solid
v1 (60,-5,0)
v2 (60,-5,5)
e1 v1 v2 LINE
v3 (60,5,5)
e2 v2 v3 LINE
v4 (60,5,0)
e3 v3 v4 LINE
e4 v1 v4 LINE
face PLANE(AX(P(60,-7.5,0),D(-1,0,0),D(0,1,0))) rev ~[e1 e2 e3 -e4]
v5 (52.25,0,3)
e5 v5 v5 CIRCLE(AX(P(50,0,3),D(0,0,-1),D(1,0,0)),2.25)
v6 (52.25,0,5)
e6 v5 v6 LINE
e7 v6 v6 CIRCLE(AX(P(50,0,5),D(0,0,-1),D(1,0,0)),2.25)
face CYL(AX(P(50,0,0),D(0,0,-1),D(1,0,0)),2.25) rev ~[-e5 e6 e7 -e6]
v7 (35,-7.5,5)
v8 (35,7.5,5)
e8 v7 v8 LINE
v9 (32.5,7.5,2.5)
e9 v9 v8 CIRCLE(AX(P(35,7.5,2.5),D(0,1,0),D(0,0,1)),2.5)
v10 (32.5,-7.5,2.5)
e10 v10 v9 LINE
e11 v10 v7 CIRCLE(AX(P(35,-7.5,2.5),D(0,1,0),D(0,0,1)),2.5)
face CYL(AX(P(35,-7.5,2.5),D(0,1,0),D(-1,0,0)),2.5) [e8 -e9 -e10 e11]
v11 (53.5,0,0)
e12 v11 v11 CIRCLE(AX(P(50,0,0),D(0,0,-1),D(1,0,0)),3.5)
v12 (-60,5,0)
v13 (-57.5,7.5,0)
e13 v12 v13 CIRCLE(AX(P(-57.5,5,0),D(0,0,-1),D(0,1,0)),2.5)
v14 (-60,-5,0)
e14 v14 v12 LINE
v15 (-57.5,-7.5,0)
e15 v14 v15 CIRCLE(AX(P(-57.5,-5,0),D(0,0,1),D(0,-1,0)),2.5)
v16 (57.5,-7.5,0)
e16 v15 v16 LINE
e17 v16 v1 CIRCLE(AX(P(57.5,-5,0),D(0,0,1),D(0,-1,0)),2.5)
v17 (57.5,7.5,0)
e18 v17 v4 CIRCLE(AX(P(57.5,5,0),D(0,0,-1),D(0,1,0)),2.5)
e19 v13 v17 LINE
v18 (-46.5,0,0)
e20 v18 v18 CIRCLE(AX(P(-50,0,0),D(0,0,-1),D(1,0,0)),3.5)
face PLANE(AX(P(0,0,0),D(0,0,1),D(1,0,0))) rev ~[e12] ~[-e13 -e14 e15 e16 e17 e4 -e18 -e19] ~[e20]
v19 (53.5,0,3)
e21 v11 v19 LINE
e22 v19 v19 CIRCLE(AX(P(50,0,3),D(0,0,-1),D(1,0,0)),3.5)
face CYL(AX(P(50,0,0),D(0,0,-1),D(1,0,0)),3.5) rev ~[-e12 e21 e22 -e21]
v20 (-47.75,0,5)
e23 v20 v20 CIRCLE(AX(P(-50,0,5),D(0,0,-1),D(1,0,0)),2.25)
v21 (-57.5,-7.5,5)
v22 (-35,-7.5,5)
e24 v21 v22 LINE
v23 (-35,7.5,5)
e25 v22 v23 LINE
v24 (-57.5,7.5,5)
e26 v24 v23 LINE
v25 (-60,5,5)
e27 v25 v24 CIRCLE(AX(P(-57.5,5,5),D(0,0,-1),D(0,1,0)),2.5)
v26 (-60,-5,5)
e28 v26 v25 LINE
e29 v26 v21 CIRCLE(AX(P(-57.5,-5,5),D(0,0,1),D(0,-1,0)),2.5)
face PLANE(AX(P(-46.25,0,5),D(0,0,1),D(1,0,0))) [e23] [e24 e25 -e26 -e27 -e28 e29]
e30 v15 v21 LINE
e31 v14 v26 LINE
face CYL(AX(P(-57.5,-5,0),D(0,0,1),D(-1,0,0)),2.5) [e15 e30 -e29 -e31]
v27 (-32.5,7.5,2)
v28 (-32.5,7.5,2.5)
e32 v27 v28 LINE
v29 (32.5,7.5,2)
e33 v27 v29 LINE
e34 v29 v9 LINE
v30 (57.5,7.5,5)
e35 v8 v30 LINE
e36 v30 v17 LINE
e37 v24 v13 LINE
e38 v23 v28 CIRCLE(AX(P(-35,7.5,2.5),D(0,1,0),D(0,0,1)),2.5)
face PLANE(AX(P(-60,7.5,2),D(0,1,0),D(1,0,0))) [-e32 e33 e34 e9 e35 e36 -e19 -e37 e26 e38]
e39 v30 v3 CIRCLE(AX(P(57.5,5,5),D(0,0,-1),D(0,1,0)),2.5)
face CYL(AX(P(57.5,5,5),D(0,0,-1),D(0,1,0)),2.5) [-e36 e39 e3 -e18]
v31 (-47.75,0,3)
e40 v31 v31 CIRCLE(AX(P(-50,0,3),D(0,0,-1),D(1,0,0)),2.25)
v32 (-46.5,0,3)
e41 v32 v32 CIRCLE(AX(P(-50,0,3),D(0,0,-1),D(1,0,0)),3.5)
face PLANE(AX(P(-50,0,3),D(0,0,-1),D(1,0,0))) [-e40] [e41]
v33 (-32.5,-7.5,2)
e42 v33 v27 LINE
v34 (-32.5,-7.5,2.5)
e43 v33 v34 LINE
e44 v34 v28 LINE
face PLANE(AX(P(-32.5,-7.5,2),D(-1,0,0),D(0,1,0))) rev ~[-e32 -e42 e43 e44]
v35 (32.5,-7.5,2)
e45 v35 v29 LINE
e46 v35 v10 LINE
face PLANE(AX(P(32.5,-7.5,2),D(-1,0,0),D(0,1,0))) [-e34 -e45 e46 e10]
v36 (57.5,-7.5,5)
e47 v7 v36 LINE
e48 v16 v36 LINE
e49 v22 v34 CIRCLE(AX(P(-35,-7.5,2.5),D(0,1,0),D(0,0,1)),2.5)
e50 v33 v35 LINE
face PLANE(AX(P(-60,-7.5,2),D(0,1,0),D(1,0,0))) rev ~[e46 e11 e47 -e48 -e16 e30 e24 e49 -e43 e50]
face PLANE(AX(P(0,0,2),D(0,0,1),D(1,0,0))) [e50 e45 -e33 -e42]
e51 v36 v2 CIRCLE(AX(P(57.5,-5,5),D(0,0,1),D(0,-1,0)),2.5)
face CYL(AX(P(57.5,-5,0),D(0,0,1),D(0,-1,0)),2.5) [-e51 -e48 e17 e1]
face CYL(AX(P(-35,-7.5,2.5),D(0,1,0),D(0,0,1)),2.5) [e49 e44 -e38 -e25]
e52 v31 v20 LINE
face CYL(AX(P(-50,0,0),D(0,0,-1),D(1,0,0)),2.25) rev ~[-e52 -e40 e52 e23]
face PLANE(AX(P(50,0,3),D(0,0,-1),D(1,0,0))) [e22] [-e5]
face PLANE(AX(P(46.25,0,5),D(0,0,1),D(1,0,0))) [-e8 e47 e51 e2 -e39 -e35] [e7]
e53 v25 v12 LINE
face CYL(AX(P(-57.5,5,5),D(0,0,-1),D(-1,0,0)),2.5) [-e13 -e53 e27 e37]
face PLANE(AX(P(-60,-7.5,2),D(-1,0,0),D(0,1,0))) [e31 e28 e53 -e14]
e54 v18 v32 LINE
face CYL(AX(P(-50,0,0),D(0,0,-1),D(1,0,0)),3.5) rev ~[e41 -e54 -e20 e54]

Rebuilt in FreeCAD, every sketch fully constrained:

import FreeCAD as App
import Part
import Sketcher
from FreeCAD import Vector


def edges_at(feature, points):
    """Names of the edges that pass closest to the given points."""
    edges = feature.Shape.Edges
    near = lambda p: min(range(len(edges)), key=lambda i: edges[i].distToShape(Part.Vertex(*p))[0])
    return sorted({f"Edge{near(p) + 1}" for p in points})

doc = App.newDocument("Part")
params = doc.addObject("Spreadsheet::Sheet", "Params")
for row, (alias, value) in enumerate([
    ("sketch1_width", "120 mm"),
    ("sketch1_height", "15 mm"),
    ("pad1_length", "2 mm"),
    ("sketch2_height", "15 mm"),
    ("sketch2_width", "27.5 mm"),
    ("pad2_length", "3 mm"),
    ("sketch3_diameter", "4.5 mm"),
    ("pocket1_length", "5 mm"),
    ("fillet_radius", "2.5 mm"),
    ("sketch4_diameter", "7 mm"),
    ("sketch4_diameter2", "4.5 mm"),
    ("pocket2_length", "3 mm"),
], start=1):
    params.set(f"A{row}", alias)
    params.set(f"B{row}", "=" + value)
    params.setAlias(f"B{row}", alias)

body = doc.addObject("PartDesign::Body", "Body")

# Sketch on XY plane
sketch1 = body.newObject("Sketcher::SketchObject", "Sketch")
sketch1.AttachmentSupport = (doc.getObject("XY_Plane"), [""])
sketch1.MapMode = "FlatFace"
sketch1.addGeometry([
    Part.LineSegment(Vector(-60, 7.5, 0), Vector(-60, -7.5, 0)),
    Part.LineSegment(Vector(-60, -7.5, 0), Vector(60, -7.5, 0)),
    Part.LineSegment(Vector(60, -7.5, 0), Vector(60, 7.5, 0)),
    Part.LineSegment(Vector(60, 7.5, 0), Vector(-60, 7.5, 0)),
], False)
sketch1.addConstraint([
    Sketcher.Constraint("Coincident", 0, 2, 1, 1),
    Sketcher.Constraint("Coincident", 1, 2, 2, 1),
    Sketcher.Constraint("Coincident", 2, 2, 3, 1),
    Sketcher.Constraint("Coincident", 3, 2, 0, 1),
    Sketcher.Constraint("Vertical", 0),
    Sketcher.Constraint("Horizontal", 1),
    Sketcher.Constraint("Vertical", 2),
    Sketcher.Constraint("Horizontal", 3),
    Sketcher.Constraint("Symmetric", 0, 2, 2, 2, -1, 1),
    Sketcher.Constraint("DistanceX", 1, 1, 1, 2, 120.0),
    Sketcher.Constraint("DistanceY", 0, 2, 0, 1, 15.0),
])
sketch1.setExpression("Constraints[9]", "Params.sketch1_width")
sketch1.setExpression("Constraints[10]", "Params.sketch1_height")
pad1 = body.newObject("PartDesign::Pad", "Pad")
pad1.Profile = sketch1
pad1.setExpression("Length", "Params.pad1_length")

# Sketch on XY plane
sketch2 = body.newObject("Sketcher::SketchObject", "Sketch001")
sketch2.AttachmentSupport = (doc.getObject("XY_Plane"), [""])
sketch2.MapMode = "FlatFace"
sketch2.AttachmentOffset = App.Placement(Vector(0, 0, 2), App.Rotation())
sketch2.addGeometry([
    Part.LineSegment(Vector(-60, 7.5, 0), Vector(-60, -7.5, 0)),  # 0
    Part.LineSegment(Vector(-60, -7.5, 0), Vector(-32.5, -7.5, 0)),  # 1
    Part.LineSegment(Vector(-32.5, -7.5, 0), Vector(-32.5, 7.5, 0)),  # 2
    Part.LineSegment(Vector(-32.5, 7.5, 0), Vector(-60, 7.5, 0)),  # 3
    Part.LineSegment(Vector(32.5, 7.5, 0), Vector(32.5, -7.5, 0)),  # 4
    Part.LineSegment(Vector(32.5, -7.5, 0), Vector(60, -7.5, 0)),  # 5
    Part.LineSegment(Vector(60, -7.5, 0), Vector(60, 7.5, 0)),  # 6
    Part.LineSegment(Vector(60, 7.5, 0), Vector(32.5, 7.5, 0)),  # 7
], False)
sketch2.addConstraint([
    Sketcher.Constraint("Coincident", 0, 2, 1, 1),
    Sketcher.Constraint("Coincident", 1, 2, 2, 1),
    Sketcher.Constraint("Coincident", 2, 2, 3, 1),
    Sketcher.Constraint("Coincident", 3, 2, 0, 1),
    Sketcher.Constraint("Coincident", 4, 2, 5, 1),
    Sketcher.Constraint("Coincident", 5, 2, 6, 1),
    Sketcher.Constraint("Coincident", 6, 2, 7, 1),
    Sketcher.Constraint("Coincident", 7, 2, 4, 1),
    Sketcher.Constraint("Vertical", 0),
    Sketcher.Constraint("Horizontal", 1),
    Sketcher.Constraint("Vertical", 2),
    Sketcher.Constraint("Horizontal", 3),
    Sketcher.Constraint("Vertical", 4),
    Sketcher.Constraint("Horizontal", 5),
    Sketcher.Constraint("Vertical", 6),
    Sketcher.Constraint("Horizontal", 7),
    Sketcher.Constraint("Symmetric", 2, 2, 4, 2, -1, 1),
    Sketcher.Constraint("Symmetric", 0, 2, 6, 2, -1, 1),
    Sketcher.Constraint("Horizontal", 1, 2, 4, 2),
    Sketcher.Constraint("DistanceY", 0, 2, 0, 1, 15.0),
    Sketcher.Constraint("DistanceX", 1, 1, 1, 2, 27.5),
    Sketcher.Constraint("DistanceX", 0, 2, -1, 1, 60.0),
])
sketch2.setExpression("Constraints[19]", "Params.sketch2_height")
sketch2.setExpression("Constraints[20]", "Params.sketch2_width")
pad2 = body.newObject("PartDesign::Pad", "Pad001")
pad2.Profile = sketch2
pad2.setExpression("Length", "Params.pad2_length")

# Sketch on XY plane
sketch3 = body.newObject("Sketcher::SketchObject", "Sketch002")
sketch3.AttachmentSupport = (doc.getObject("XY_Plane"), [""])
sketch3.MapMode = "FlatFace"
sketch3.addGeometry([
    Part.Circle(Vector(-50, 0, 0), Vector(0, 0, 1), 2.25),
    Part.Circle(Vector(50, 0, 0), Vector(0, 0, 1), 2.25),
], False)
sketch3.addConstraint([
    Sketcher.Constraint("Equal", 0, 1),
    Sketcher.Constraint("Symmetric", 0, 3, 1, 3, -1, 1),
    Sketcher.Constraint("PointOnObject", 0, 3, -1),
    Sketcher.Constraint("Diameter", 0, 4.5),
    Sketcher.Constraint("DistanceX", 0, 3, -1, 1, 50.0),
])
sketch3.setExpression("Constraints[3]", "Params.sketch3_diameter")
pocket1 = body.newObject("PartDesign::Pocket", "Pocket")
pocket1.Profile = sketch3
pocket1.setExpression("Length", "Params.pocket1_length")
pocket1.Reversed = True
doc.recompute()

fillet = body.newObject("PartDesign::Fillet", "Fillet")
fillet.Base = (pocket1, edges_at(pocket1, [
    (60, 7.5, 2.5),
    (60, -7.5, 2.5),
    (-60, 7.5, 2.5),
    (-60, -7.5, 2.5),
    (32.5, 0, 5),
    (-32.5, 0, 5),
]))
fillet.setExpression("Radius", "Params.fillet_radius")

# Sketch on XY plane
sketch4 = body.newObject("Sketcher::SketchObject", "Sketch003")
sketch4.AttachmentSupport = (doc.getObject("XY_Plane"), [""])
sketch4.MapMode = "FlatFace"
sketch4.addGeometry([
    Part.Circle(Vector(-50, 0, 0), Vector(0, 0, 1), 3.5),
    Part.Circle(Vector(-50, 0, 0), Vector(0, 0, 1), 2.25),
    Part.Circle(Vector(50, 0, 0), Vector(0, 0, 1), 3.5),
    Part.Circle(Vector(50, 0, 0), Vector(0, 0, 1), 2.25),
], False)
sketch4.addConstraint([
    Sketcher.Constraint("Coincident", 1, 3, 0, 3),
    Sketcher.Constraint("Coincident", 3, 3, 2, 3),
    Sketcher.Constraint("Equal", 0, 2),
    Sketcher.Constraint("Equal", 1, 3),
    Sketcher.Constraint("Symmetric", 0, 3, 2, 3, -1, 1),
    Sketcher.Constraint("PointOnObject", 0, 3, -1),
    Sketcher.Constraint("Diameter", 0, 7.0),
    Sketcher.Constraint("Diameter", 1, 4.5),
    Sketcher.Constraint("DistanceX", 0, 3, -1, 1, 50.0),
])
sketch4.setExpression("Constraints[6]", "Params.sketch4_diameter")
sketch4.setExpression("Constraints[7]", "Params.sketch4_diameter2")
pocket2 = body.newObject("PartDesign::Pocket", "Pocket001")
pocket2.Profile = sketch4
pocket2.setExpression("Length", "Params.pocket2_length")
pocket2.Reversed = True

doc.recompute()
